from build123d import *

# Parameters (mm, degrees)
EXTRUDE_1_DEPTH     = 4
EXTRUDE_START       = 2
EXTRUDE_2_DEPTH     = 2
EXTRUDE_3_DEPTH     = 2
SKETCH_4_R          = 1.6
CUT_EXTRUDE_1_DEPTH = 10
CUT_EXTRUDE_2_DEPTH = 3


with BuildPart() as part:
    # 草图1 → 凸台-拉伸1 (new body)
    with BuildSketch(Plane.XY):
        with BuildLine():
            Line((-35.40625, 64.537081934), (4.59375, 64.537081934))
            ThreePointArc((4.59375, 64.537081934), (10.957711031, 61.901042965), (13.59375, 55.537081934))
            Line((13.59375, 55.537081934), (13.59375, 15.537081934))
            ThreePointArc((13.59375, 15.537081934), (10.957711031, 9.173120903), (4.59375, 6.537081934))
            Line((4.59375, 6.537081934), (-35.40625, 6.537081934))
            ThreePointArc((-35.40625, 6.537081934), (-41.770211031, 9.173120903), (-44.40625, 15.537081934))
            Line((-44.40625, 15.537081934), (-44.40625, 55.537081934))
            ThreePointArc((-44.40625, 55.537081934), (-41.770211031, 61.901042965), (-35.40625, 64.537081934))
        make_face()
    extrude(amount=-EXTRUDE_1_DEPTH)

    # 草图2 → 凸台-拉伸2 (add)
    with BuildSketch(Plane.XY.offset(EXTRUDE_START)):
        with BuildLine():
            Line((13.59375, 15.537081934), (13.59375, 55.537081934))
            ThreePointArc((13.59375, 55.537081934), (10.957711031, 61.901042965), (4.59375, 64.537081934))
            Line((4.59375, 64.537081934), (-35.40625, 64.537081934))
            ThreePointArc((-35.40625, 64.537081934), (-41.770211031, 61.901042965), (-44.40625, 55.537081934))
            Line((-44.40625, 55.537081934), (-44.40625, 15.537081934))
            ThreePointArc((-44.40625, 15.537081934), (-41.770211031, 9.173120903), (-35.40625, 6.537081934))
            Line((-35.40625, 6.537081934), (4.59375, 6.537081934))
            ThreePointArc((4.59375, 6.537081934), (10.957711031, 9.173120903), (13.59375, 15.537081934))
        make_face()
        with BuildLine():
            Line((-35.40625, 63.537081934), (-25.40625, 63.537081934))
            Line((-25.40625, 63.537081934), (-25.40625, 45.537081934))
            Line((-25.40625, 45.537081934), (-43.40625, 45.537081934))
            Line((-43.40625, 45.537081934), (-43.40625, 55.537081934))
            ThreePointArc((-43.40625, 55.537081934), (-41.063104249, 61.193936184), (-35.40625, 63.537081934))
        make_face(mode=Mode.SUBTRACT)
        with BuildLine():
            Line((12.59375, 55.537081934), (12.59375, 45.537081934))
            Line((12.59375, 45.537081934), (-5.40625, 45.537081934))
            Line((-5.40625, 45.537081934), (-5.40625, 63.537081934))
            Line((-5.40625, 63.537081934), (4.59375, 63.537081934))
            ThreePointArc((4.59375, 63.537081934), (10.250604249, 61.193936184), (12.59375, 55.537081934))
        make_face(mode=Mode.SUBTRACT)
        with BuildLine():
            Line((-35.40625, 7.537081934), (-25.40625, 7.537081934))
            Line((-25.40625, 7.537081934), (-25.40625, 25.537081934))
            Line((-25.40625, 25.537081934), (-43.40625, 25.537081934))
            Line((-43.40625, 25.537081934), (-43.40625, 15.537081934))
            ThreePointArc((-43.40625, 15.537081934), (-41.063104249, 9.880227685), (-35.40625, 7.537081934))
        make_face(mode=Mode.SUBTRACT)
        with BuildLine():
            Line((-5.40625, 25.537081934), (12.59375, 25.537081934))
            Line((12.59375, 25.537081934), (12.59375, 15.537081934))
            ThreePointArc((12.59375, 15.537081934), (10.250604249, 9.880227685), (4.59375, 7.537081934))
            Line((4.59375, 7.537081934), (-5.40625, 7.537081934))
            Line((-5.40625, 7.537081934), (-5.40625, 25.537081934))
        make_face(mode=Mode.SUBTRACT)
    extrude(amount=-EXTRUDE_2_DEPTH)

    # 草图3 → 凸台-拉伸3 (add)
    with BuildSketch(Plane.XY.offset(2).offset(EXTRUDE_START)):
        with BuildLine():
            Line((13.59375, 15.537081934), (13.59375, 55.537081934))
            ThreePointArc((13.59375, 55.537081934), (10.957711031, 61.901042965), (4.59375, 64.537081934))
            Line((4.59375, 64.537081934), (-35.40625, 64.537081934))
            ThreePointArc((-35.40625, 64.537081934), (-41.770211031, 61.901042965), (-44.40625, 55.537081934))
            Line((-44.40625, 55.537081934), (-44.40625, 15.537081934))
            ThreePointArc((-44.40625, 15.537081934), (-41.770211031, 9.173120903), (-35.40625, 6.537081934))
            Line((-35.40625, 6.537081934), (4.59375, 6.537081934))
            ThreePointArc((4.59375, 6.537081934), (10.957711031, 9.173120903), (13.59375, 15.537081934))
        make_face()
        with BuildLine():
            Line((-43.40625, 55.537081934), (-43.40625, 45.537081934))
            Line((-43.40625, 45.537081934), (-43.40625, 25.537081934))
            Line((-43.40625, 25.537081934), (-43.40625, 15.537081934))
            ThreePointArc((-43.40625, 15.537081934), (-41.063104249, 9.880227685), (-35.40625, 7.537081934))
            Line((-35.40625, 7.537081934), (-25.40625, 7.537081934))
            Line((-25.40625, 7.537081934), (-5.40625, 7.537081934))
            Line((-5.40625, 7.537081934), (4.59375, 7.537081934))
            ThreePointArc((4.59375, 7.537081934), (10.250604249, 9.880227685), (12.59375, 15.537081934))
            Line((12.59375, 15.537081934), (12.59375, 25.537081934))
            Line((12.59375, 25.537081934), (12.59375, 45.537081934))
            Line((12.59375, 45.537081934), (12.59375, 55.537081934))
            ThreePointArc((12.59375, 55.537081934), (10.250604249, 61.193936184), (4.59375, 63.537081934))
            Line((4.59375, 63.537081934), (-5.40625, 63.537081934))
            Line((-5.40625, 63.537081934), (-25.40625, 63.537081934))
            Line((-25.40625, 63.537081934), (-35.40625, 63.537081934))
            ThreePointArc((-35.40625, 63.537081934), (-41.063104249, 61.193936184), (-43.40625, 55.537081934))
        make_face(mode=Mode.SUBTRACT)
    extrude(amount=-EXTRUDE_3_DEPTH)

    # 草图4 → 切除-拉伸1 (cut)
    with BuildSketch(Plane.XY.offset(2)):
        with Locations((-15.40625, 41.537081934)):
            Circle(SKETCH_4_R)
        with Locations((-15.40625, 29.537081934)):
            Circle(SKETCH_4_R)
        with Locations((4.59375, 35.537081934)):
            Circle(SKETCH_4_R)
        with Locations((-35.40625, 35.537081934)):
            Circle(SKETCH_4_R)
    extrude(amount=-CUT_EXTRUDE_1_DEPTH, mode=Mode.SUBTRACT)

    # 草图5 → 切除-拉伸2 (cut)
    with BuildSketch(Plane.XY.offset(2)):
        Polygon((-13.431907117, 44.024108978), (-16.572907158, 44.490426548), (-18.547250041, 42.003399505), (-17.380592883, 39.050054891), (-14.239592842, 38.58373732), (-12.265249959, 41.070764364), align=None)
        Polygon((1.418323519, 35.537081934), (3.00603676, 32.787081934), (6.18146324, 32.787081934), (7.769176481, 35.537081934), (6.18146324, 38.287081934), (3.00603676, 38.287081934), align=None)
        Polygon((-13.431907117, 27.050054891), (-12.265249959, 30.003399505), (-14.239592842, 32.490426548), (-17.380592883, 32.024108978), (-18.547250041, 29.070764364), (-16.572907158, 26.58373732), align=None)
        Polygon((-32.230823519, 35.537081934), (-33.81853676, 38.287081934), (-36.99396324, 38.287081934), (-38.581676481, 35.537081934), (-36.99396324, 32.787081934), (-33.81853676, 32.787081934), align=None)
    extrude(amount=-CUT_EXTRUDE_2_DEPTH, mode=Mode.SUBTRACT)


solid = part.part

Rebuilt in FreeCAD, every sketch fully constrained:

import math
import FreeCAD as App
import Part
import Sketcher

V = App.Vector
Q = App.Units.Quantity

doc = App.newDocument("Part")
body = doc.addObject("PartDesign::Body", "Body")

# Sketch on XY plane
sketch1 = body.newObject("Sketcher::SketchObject", "Sketch")
sketch1.AttachmentSupport = (doc.getObject("XY_Plane"), [""])
sketch1.MapMode = "FlatFace"
sketch1.addGeometry([
    Part.LineSegment(V(5, 65, 0), V(-35, 65, 0)),  # 0
    Part.ArcOfCircle(Part.Circle(V(-35, 56, 0), V(0, 0, 1), 9), math.radians(90), math.radians(180)),  # 1
    Part.LineSegment(V(-44, 56, 0), V(-44, 16, 0)),  # 2
    Part.ArcOfCircle(Part.Circle(V(-35, 16, 0), V(0, 0, 1), 9), math.radians(180), math.radians(270)),  # 3
    Part.LineSegment(V(-35, 7, 0), V(5, 7, 0)),  # 4
    Part.ArcOfCircle(Part.Circle(V(5, 16, 0), V(0, 0, 1), 9), math.radians(-90), math.radians(0)),  # 5
    Part.LineSegment(V(14, 16, 0), V(14, 56, 0)),  # 6
    Part.ArcOfCircle(Part.Circle(V(5, 56, 0), V(0, 0, 1), 9), math.radians(0), math.radians(90)),  # 7
], False)
sketch1.addConstraint([
    Sketcher.Constraint("Tangent", 0, 2, 1, 1),
    Sketcher.Constraint("Tangent", 1, 2, 2, 1),
    Sketcher.Constraint("Tangent", 2, 2, 3, 1),
    Sketcher.Constraint("Tangent", 3, 2, 4, 1),
    Sketcher.Constraint("Tangent", 4, 2, 5, 1),
    Sketcher.Constraint("Tangent", 5, 2, 6, 1),
    Sketcher.Constraint("Tangent", 6, 2, 7, 1),
    Sketcher.Constraint("Tangent", 7, 2, 0, 1),
    Sketcher.Constraint("Horizontal", 0),
    Sketcher.Constraint("Vertical", 2),
    Sketcher.Constraint("Horizontal", 4),
    Sketcher.Constraint("Vertical", 6),
    Sketcher.Constraint("Equal", 1, 3),
    Sketcher.Constraint("Equal", 3, 5),
    Sketcher.Constraint("Equal", 5, 7),
    Sketcher.Constraint("Equal", 4, 2),
    Sketcher.Constraint("Radius", 1, Q("9 mm")),
    Sketcher.Constraint("DistanceX", 0, 2, 0, 1, Q("40 mm")),
    Sketcher.Constraint("DistanceX", 1, 3, -1, 1, Q("35.40625 mm")),
    Sketcher.Constraint("DistanceY", -1, 1, 1, 3, Q("55.537082 mm")),
])
pad1 = body.newObject("PartDesign::Pad", "Pad")
pad1.Profile = sketch1
pad1.Length = 4
pad1.Reversed = True

# Sketch on XY plane
sketch2 = body.newObject("Sketcher::SketchObject", "Sketch001")
sketch2.AttachmentSupport = (doc.getObject("XY_Plane"), [""])
sketch2.MapMode = "FlatFace"
sketch2.AttachmentOffset = App.Placement(V(0, 0, 2), App.Rotation())
sketch2.addGeometry([
    Part.LineSegment(V(14, 16, 0), V(14, 56, 0)),  # 0
    Part.ArcOfCircle(Part.Circle(V(5, 56, 0), V(0, 0, 1), 9), math.radians(0), math.radians(90)),  # 1
    Part.LineSegment(V(5, 65, 0), V(-35, 65, 0)),  # 2
    Part.ArcOfCircle(Part.Circle(V(-35, 56, 0), V(0, 0, 1), 9), math.radians(90), math.radians(180)),  # 3
    Part.LineSegment(V(-44, 56, 0), V(-44, 16, 0)),  # 4
    Part.ArcOfCircle(Part.Circle(V(-35, 16, 0), V(0, 0, 1), 9), math.radians(180), math.radians(270)),  # 5
    Part.LineSegment(V(-35, 7, 0), V(5, 7, 0)),  # 6
    Part.ArcOfCircle(Part.Circle(V(5, 16, 0), V(0, 0, 1), 9), math.radians(-90), math.radians(0)),  # 7
    Part.LineSegment(V(-25, 8, 0), V(-35, 8, 0)),  # 8
    Part.ArcOfCircle(Part.Circle(V(-35, 16, 0), V(0, 0, 1), 8), math.radians(-180), math.radians(-90)),  # 9
    Part.LineSegment(V(-43, 16, 0), V(-43, 26, 0)),  # 10
    Part.LineSegment(V(-43, 26, 0), V(-25, 26, 0)),  # 11
    Part.LineSegment(V(-25, 26, 0), V(-25, 8, 0)),  # 12
    Part.LineSegment(V(-5, 8, 0), V(-5, 26, 0)),  # 13
    Part.LineSegment(V(-5, 26, 0), V(13, 26, 0)),  # 14
    Part.LineSegment(V(13, 26, 0), V(13, 16, 0)),  # 15
    Part.ArcOfCircle(Part.Circle(V(5, 16, 0), V(0, 0, 1), 8), math.radians(-90), math.radians(0)),  # 16
    Part.LineSegment(V(5, 8, 0), V(-5, 8, 0)),  # 17
    Part.ArcOfCircle(Part.Circle(V(-35, 56, 0), V(0, 0, 1), 8), math.radians(90), math.radians(180)),  # 18
    Part.LineSegment(V(-35, 64, 0), V(-25, 64, 0)),  # 19
    Part.LineSegment(V(-25, 64, 0), V(-25, 46, 0)),  # 20
    Part.LineSegment(V(-25, 46, 0), V(-43, 46, 0)),  # 21
    Part.LineSegment(V(-43, 46, 0), V(-43, 56, 0)),  # 22
    Part.ArcOfCircle(Part.Circle(V(5, 56, 0), V(0, 0, 1), 8), math.radians(0), math.radians(90)),  # 23
    Part.LineSegment(V(13, 56, 0), V(13, 46, 0)),  # 24
    Part.LineSegment(V(13, 46, 0), V(-5, 46, 0)),  # 25
    Part.LineSegment(V(-5, 46, 0), V(-5, 64, 0)),  # 26
    Part.LineSegment(V(-5, 64, 0), V(5, 64, 0)),  # 27
], False)
sketch2.addConstraint([
    Sketcher.Constraint("Tangent", 0, 2, 1, 1),
    Sketcher.Constraint("Tangent", 1, 2, 2, 1),
    Sketcher.Constraint("Tangent", 2, 2, 3, 1),
    Sketcher.Constraint("Tangent", 3, 2, 4, 1),
    Sketcher.Constraint("Tangent", 4, 2, 5, 1),
    Sketcher.Constraint("Tangent", 5, 2, 6, 1),
    Sketcher.Constraint("Tangent", 6, 2, 7, 1),
    Sketcher.Constraint("Tangent", 7, 2, 0, 1),
    Sketcher.Constraint("Tangent", 8, 2, 9, 2),
    Sketcher.Constraint("Tangent", 9, 1, 10, 1),
    Sketcher.Constraint("Coincident", 10, 2, 11, 1),
    Sketcher.Constraint("Coincident", 11, 2, 12, 1),
    Sketcher.Constraint("Coincident", 12, 2, 8, 1),
    Sketcher.Constraint("Coincident", 13, 2, 14, 1),
    Sketcher.Constraint("Coincident", 14, 2, 15, 1),
    Sketcher.Constraint("Tangent", 15, 2, 16, 2),
    Sketcher.Constraint("Tangent", 16, 1, 17, 1),
    Sketcher.Constraint("Coincident", 17, 2, 13, 1),
    Sketcher.Constraint("Tangent", 18, 1, 19, 1),
    Sketcher.Constraint("Coincident", 19, 2, 20, 1),
    Sketcher.Constraint("Coincident", 20, 2, 21, 1),
    Sketcher.Constraint("Coincident", 21, 2, 22, 1),
    Sketcher.Constraint("Tangent", 22, 2, 18, 2),
    Sketcher.Constraint("Tangent", 23, 1, 24, 1),
    Sketcher.Constraint("Coincident", 24, 2, 25, 1),
    Sketcher.Constraint("Coincident", 25, 2, 26, 1),
    Sketcher.Constraint("Coincident", 26, 2, 27, 1),
    Sketcher.Constraint("Tangent", 27, 2, 23, 2),
    Sketcher.Constraint("Vertical", 0),
    Sketcher.Constraint("Horizontal", 2),
    Sketcher.Constraint("Vertical", 4),
    Sketcher.Constraint("Horizontal", 6),
    Sketcher.Constraint("Horizontal", 8),
    Sketcher.Constraint("Vertical", 10),
    Sketcher.Constraint("Horizontal", 11),
    Sketcher.Constraint("Vertical", 12),
    Sketcher.Constraint("Vertical", 13),
    Sketcher.Constraint("Horizontal", 14),
    Sketcher.Constraint("Vertical", 15),
    Sketcher.Constraint("Horizontal", 17),
    Sketcher.Constraint("Horizontal", 19),
    Sketcher.Constraint("Vertical", 20),
    Sketcher.Constraint("Horizontal", 21),
    Sketcher.Constraint("Vertical", 22),
    Sketcher.Constraint("Vertical", 24),
    Sketcher.Constraint("Horizontal", 25),
    Sketcher.Constraint("Vertical", 26),
    Sketcher.Constraint("Horizontal", 27),
    Sketcher.Constraint("Coincident", 9, 3, 5, 3),
    Sketcher.Constraint("Coincident", 16, 3, 7, 3),
    Sketcher.Constraint("Coincident", 18, 3, 3, 3),
    Sketcher.Constraint("Coincident", 23, 3, 1, 3),
    Sketcher.Constraint("Equal", 1, 3),
    Sketcher.Constraint("Equal", 3, 5),
    Sketcher.Constraint("Equal", 5, 7),
    Sketcher.Constraint("Equal", 9, 16),
    Sketcher.Constraint("Equal", 16, 18),
    Sketcher.Constraint("Equal", 18, 23),
    Sketcher.Constraint("Horizontal", 11, 2, 13, 2),
    Sketcher.Constraint("Horizontal", 21, 2, 24, 2),
    Sketcher.Constraint("Vertical", 12, 2, 19, 2),
    Sketcher.Constraint("Vertical", 17, 2, 25, 2),
    Sketcher.Constraint("Equal", 11, 14),
    Sketcher.Constraint("Equal", 6, 0),
    Sketcher.Constraint("Equal", 27, 10),
    Sketcher.Constraint("Equal", 13, 20),
    Sketcher.Constraint("Radius", 1, Q("9 mm")),
    Sketcher.Constraint("Radius", 9, Q("8 mm")),
    Sketcher.Constraint("DistanceX", 2, 2, 2, 1, Q("40 mm")),
    Sketcher.Constraint("DistanceX", 8, 2, 8, 1, Q("10 mm")),
    Sketcher.Constraint("DistanceX", -1, 1, 1, 3, Q("4.59375 mm")),
    Sketcher.Constraint("DistanceY", -1, 1, 1, 3, Q("55.537082 mm")),
])
pad2 = body.newObject("PartDesign::Pad", "Pad001")
pad2.Profile = sketch2
pad2.Length = 2
pad2.Reversed = True

# Sketch on XY plane
sketch3 = body.newObject("Sketcher::SketchObject", "Sketch002")
sketch3.AttachmentSupport = (doc.getObject("XY_Plane"), [""])
sketch3.MapMode = "FlatFace"
sketch3.AttachmentOffset = App.Placement(V(0, 0, 4), App.Rotation())
sketch3.addGeometry([
    Part.LineSegment(V(14, 16, 0), V(14, 56, 0)),  # 0
    Part.ArcOfCircle(Part.Circle(V(5, 56, 0), V(0, 0, 1), 9), math.radians(0), math.radians(90)),  # 1
    Part.LineSegment(V(5, 65, 0), V(-35, 65, 0)),  # 2
    Part.ArcOfCircle(Part.Circle(V(-35, 56, 0), V(0, 0, 1), 9), math.radians(90), math.radians(180)),  # 3
    Part.LineSegment(V(-44, 56, 0), V(-44, 16, 0)),  # 4
    Part.ArcOfCircle(Part.Circle(V(-35, 16, 0), V(0, 0, 1), 9), math.radians(180), math.radians(270)),  # 5
    Part.LineSegment(V(-35, 7, 0), V(5, 7, 0)),  # 6
    Part.ArcOfCircle(Part.Circle(V(5, 16, 0), V(0, 0, 1), 9), math.radians(-90), math.radians(0)),  # 7
    Part.LineSegment(V(-43, 16, 0), V(-43, 56, 0)),  # 8
    Part.ArcOfCircle(Part.Circle(V(-35, 56, 0), V(0, 0, 1), 8), math.radians(90), math.radians(180)),  # 9
    Part.LineSegment(V(-35, 64, 0), V(5, 64, 0)),  # 10
    Part.ArcOfCircle(Part.Circle(V(5, 56, 0), V(0, 0, 1), 8), math.radians(0), math.radians(90)),  # 11
    Part.LineSegment(V(13, 56, 0), V(13, 16, 0)),  # 12
    Part.ArcOfCircle(Part.Circle(V(5, 16, 0), V(0, 0, 1), 8), math.radians(-90), math.radians(0)),  # 13
    Part.LineSegment(V(5, 8, 0), V(-35, 8, 0)),  # 14
    Part.ArcOfCircle(Part.Circle(V(-35, 16, 0), V(0, 0, 1), 8), math.radians(-180), math.radians(-90)),  # 15
], False)
sketch3.addConstraint([
    Sketcher.Constraint("Tangent", 0, 2, 1, 1),
    Sketcher.Constraint("Tangent", 1, 2, 2, 1),
    Sketcher.Constraint("Tangent", 2, 2, 3, 1),
    Sketcher.Constraint("Tangent", 3, 2, 4, 1),
    Sketcher.Constraint("Tangent", 4, 2, 5, 1),
    Sketcher.Constraint("Tangent", 5, 2, 6, 1),
    Sketcher.Constraint("Tangent", 6, 2, 7, 1),
    Sketcher.Constraint("Tangent", 7, 2, 0, 1),
    Sketcher.Constraint("Tangent", 8, 2, 9, 2),
    Sketcher.Constraint("Tangent", 9, 1, 10, 1),
    Sketcher.Constraint("Tangent", 10, 2, 11, 2),
    Sketcher.Constraint("Tangent", 11, 1, 12, 1),
    Sketcher.Constraint("Tangent", 12, 2, 13, 2),
    Sketcher.Constraint("Tangent", 13, 1, 14, 1),
    Sketcher.Constraint("Tangent", 14, 2, 15, 2),
    Sketcher.Constraint("Tangent", 15, 1, 8, 1),
    Sketcher.Constraint("Vertical", 0),
    Sketcher.Constraint("Horizontal", 2),
    Sketcher.Constraint("Vertical", 4),
    Sketcher.Constraint("Horizontal", 6),
    Sketcher.Constraint("Vertical", 8),
    Sketcher.Constraint("Horizontal", 10),
    Sketcher.Constraint("Vertical", 12),
    Sketcher.Constraint("Horizontal", 14),
    Sketcher.Constraint("Coincident", 9, 3, 3, 3),
    Sketcher.Constraint("Coincident", 11, 3, 1, 3),
    Sketcher.Constraint("Coincident", 13, 3, 7, 3),
    Sketcher.Constraint("Equal", 1, 3),
    Sketcher.Constraint("Equal", 3, 5),
    Sketcher.Constraint("Equal", 5, 7),
    Sketcher.Constraint("Equal", 13, 15),
    Sketcher.Constraint("Equal", 14, 0),
    Sketcher.Constraint("Radius", 1, Q("9 mm")),
    Sketcher.Constraint("Radius", 9, Q("8 mm")),
    Sketcher.Constraint("DistanceX", 2, 2, 2, 1, Q("40 mm")),
    Sketcher.Constraint("DistanceX", -1, 1, 1, 3, Q("4.59375 mm")),
    Sketcher.Constraint("DistanceY", -1, 1, 1, 3, Q("55.537082 mm")),
])
pad3 = body.newObject("PartDesign::Pad", "Pad002")
pad3.Profile = sketch3
pad3.Length = 2
pad3.Reversed = True

# Sketch on XY plane
sketch4 = body.newObject("Sketcher::SketchObject", "Sketch003")
sketch4.AttachmentSupport = (doc.getObject("XY_Plane"), [""])
sketch4.MapMode = "FlatFace"
sketch4.AttachmentOffset = App.Placement(V(0, 0, 2), App.Rotation())
sketch4.addGeometry([
    Part.Circle(V(-15.4, 41.5, 0), V(0, 0, 1), 1.6),
    Part.Circle(V(-15.4, 29.5, 0), V(0, 0, 1), 1.6),
    Part.Circle(V(4.6, 35.5, 0), V(0, 0, 1), 1.6),
    Part.Circle(V(-35.4, 35.5, 0), V(0, 0, 1), 1.6),
], False)
sketch4.addConstraint([
    Sketcher.Constraint("Equal", 0, 1),
    Sketcher.Constraint("Equal", 1, 2),
    Sketcher.Constraint("Equal", 2, 3),
    Sketcher.Constraint("Horizontal", 2, 3, 3, 3),
    Sketcher.Constraint("Vertical", 0, 3, 1, 3),
    Sketcher.Constraint("Diameter", 0, Q("3.2 mm")),
    Sketcher.Constraint("DistanceY", 1, 3, 0, 3, Q("12 mm")),
    Sketcher.Constraint("DistanceX", 0, 3, 2, 3, Q("20 mm")),
    Sketcher.Constraint("DistanceY", 2, 3, 0, 3, Q("6 mm")),
    Sketcher.Constraint("DistanceX", 3, 3, 0, 3, Q("20 mm")),
    Sketcher.Constraint("DistanceX", 0, 3, -1, 1, Q("15.40625 mm")),
    Sketcher.Constraint("DistanceY", -1, 1, 0, 3, Q("41.537082 mm")),
])
pocket1 = body.newObject("PartDesign::Pocket", "Pocket")
pocket1.Profile = sketch4
pocket1.Length = 10

# Sketch on XY plane
sketch5 = body.newObject("Sketcher::SketchObject", "Sketch004")
sketch5.AttachmentSupport = (doc.getObject("XY_Plane"), [""])
sketch5.MapMode = "FlatFace"
sketch5.AttachmentOffset = App.Placement(V(0, 0, 2), App.Rotation())
sketch5.addGeometry([
    Part.LineSegment(V(-13.4, 44, 0), V(-16.6, 44.5, 0)),  # 0
    Part.LineSegment(V(-16.6, 44.5, 0), V(-18.5, 42, 0)),  # 1
    Part.LineSegment(V(-18.5, 42, 0), V(-17.4, 39.1, 0)),  # 2
    Part.LineSegment(V(-17.4, 39.1, 0), V(-14.2, 38.6, 0)),  # 3
    Part.LineSegment(V(-14.2, 38.6, 0), V(-12.3, 41.1, 0)),  # 4
    Part.LineSegment(V(-12.3, 41.1, 0), V(-13.4, 44, 0)),  # 5
    Part.LineSegment(V(1.4, 35.5, 0), V(3, 32.8, 0)),  # 6
    Part.LineSegment(V(3, 32.8, 0), V(6.2, 32.8, 0)),  # 7
    Part.LineSegment(V(6.2, 32.8, 0), V(7.8, 35.5, 0)),  # 8
    Part.LineSegment(V(7.8, 35.5, 0), V(6.2, 38.3, 0)),  # 9
    Part.LineSegment(V(6.2, 38.3, 0), V(3, 38.3, 0)),  # 10
    Part.LineSegment(V(3, 38.3, 0), V(1.4, 35.5, 0)),  # 11
    Part.LineSegment(V(-13.4, 27.1, 0), V(-12.3, 30, 0)),  # 12
    Part.LineSegment(V(-12.3, 30, 0), V(-14.2, 32.5, 0)),  # 13
    Part.LineSegment(V(-14.2, 32.5, 0), V(-17.4, 32, 0)),  # 14
    Part.LineSegment(V(-17.4, 32, 0), V(-18.5, 29.1, 0)),  # 15
    Part.LineSegment(V(-18.5, 29.1, 0), V(-16.6, 26.6, 0)),  # 16
    Part.LineSegment(V(-16.6, 26.6, 0), V(-13.4, 27.1, 0)),  # 17
    Part.LineSegment(V(-32.2, 35.5, 0), V(-33.8, 38.3, 0)),  # 18
    Part.LineSegment(V(-33.8, 38.3, 0), V(-37, 38.3, 0)),  # 19
    Part.LineSegment(V(-37, 38.3, 0), V(-38.6, 35.5, 0)),  # 20
    Part.LineSegment(V(-38.6, 35.5, 0), V(-37, 32.8, 0)),  # 21
    Part.LineSegment(V(-37, 32.8, 0), V(-33.8, 32.8, 0)),  # 22
    Part.LineSegment(V(-33.8, 32.8, 0), V(-32.2, 35.5, 0)),  # 23
], False)
sketch5.addConstraint([
    Sketcher.Constraint("Coincident", 0, 2, 1, 1),
    Sketcher.Constraint("Coincident", 1, 2, 2, 1),
    Sketcher.Constraint("Coincident", 2, 2, 3, 1),
    Sketcher.Constraint("Coincident", 3, 2, 4, 1),
    Sketcher.Constraint("Coincident", 4, 2, 5, 1),
    Sketcher.Constraint("Coincident", 5, 2, 0, 1),
    Sketcher.Constraint("Coincident", 6, 2, 7, 1),
    Sketcher.Constraint("Coincident", 7, 2, 8, 1),
    Sketcher.Constraint("Coincident", 8, 2, 9, 1),
    Sketcher.Constraint("Coincident", 9, 2, 10, 1),
    Sketcher.Constraint("Coincident", 10, 2, 11, 1),
    Sketcher.Constraint("Coincident", 11, 2, 6, 1),
    Sketcher.Constraint("Coincident", 12, 2, 13, 1),
    Sketcher.Constraint("Coincident", 13, 2, 14, 1),
    Sketcher.Constraint("Coincident", 14, 2, 15, 1),
    Sketcher.Constraint("Coincident", 15, 2, 16, 1),
    Sketcher.Constraint("Coincident", 16, 2, 17, 1),
    Sketcher.Constraint("Coincident", 17, 2, 12, 1),
    Sketcher.Constraint("Coincident", 18, 2, 19, 1),
    Sketcher.Constraint("Coincident", 19, 2, 20, 1),
    Sketcher.Constraint("Coincident", 20, 2, 21, 1),
    Sketcher.Constraint("Coincident", 21, 2, 22, 1),
    Sketcher.Constraint("Coincident", 22, 2, 23, 1),
    Sketcher.Constraint("Coincident", 23, 2, 18, 1),
    Sketcher.Constraint("Horizontal", 7),
    Sketcher.Constraint("Horizontal", 10),
    Sketcher.Constraint("Horizontal", 19),
    Sketcher.Constraint("Horizontal", 22),
    Sketcher.Constraint("Parallel", 0, 3),
    Sketcher.Constraint("Parallel", 1, 4),
    Sketcher.Constraint("Parallel", 2, 5),
    Sketcher.Constraint("Parallel", 6, 9),
    Sketcher.Constraint("Parallel", 8, 11),
    Sketcher.Constraint("Parallel", 12, 15),
    Sketcher.Constraint("Parallel", 13, 16),
    Sketcher.Constraint("Parallel", 14, 17),
    Sketcher.Constraint("Parallel", 9, 18),
    Sketcher.Constraint("Parallel", 11, 20),
    Sketcher.Constraint("Parallel", 18, 21),
    Sketcher.Constraint("Parallel", 20, 23),
    Sketcher.Constraint("Horizontal", 8, 2, 11, 2),
    Sketcher.Constraint("Horizontal", 10, 2, 18, 2),
    Sketcher.Constraint("Horizontal", 11, 2, 20, 2),
    Sketcher.Constraint("Horizontal", 7, 2, 21, 2),
    Sketcher.Constraint("Horizontal", 20, 2, 23, 2),
    Sketcher.Constraint("Vertical", 7, 2, 9, 2),
    Sketcher.Constraint("Vertical", 6, 2, 10, 2),
    Sketcher.Constraint("Vertical", 4, 2, 12, 2),
    Sketcher.Constraint("Vertical", 3, 2, 13, 2),
    Sketcher.Constraint("Vertical", 2, 2, 14, 2),
    Sketcher.Constraint("Vertical", 1, 2, 15, 2),
    Sketcher.Constraint("Vertical", 0, 2, 16, 2),
    Sketcher.Constraint("Equal", 10, 19),
    Sketcher.Constraint("Equal", 0, 1),
    Sketcher.Constraint("Equal", 1, 2),
    Sketcher.Constraint("Equal", 2, 3),
    Sketcher.Constraint("Equal", 5, 6),
    Sketcher.Constraint("Equal", 11, 12),
    Sketcher.Constraint("Equal", 12, 13),
    Sketcher.Constraint("Equal", 13, 14),
    Sketcher.Constraint("Angle", 6, Q("-60 deg")),
    Sketcher.Constraint("DistanceY", 12, 2, 1, 2, Q("12 mm")),
    Sketcher.Constraint("DistanceY", 7, 2, 9, 2, Q("5.5 mm")),
    Sketcher.Constraint("DistanceX", 2, 2, 3, 2, Q("3.141 mm")),
    Sketcher.Constraint("DistanceX", 1, 2, 4, 2, Q("6.282 mm")),
    Sketcher.Constraint("DistanceY", -1, 1, 1, 2, Q("42.0034 mm")),
    Sketcher.Constraint("DistanceX", 7, 1, 7, 2, Q("3.175426 mm")),
    Sketcher.Constraint("DistanceX", 1, 2, -1, 1, Q("18.54725 mm")),
    Sketcher.Constraint("DistanceY", -1, 1, 5, 2, Q("44.024109 mm")),
    Sketcher.Constraint("DistanceY", -1, 1, 6, 2, Q("32.787082 mm")),
    Sketcher.Constraint("DistanceX", 3, 2, 6, 2, Q("17.24563 mm")),
    Sketcher.Constraint("DistanceX", 18, 2, 0, 2, Q("17.24563 mm")),
])
pocket2 = body.newObject("PartDesign::Pocket", "Pocket001")
pocket2.Profile = sketch5
pocket2.Length = 3

doc.recompute()
